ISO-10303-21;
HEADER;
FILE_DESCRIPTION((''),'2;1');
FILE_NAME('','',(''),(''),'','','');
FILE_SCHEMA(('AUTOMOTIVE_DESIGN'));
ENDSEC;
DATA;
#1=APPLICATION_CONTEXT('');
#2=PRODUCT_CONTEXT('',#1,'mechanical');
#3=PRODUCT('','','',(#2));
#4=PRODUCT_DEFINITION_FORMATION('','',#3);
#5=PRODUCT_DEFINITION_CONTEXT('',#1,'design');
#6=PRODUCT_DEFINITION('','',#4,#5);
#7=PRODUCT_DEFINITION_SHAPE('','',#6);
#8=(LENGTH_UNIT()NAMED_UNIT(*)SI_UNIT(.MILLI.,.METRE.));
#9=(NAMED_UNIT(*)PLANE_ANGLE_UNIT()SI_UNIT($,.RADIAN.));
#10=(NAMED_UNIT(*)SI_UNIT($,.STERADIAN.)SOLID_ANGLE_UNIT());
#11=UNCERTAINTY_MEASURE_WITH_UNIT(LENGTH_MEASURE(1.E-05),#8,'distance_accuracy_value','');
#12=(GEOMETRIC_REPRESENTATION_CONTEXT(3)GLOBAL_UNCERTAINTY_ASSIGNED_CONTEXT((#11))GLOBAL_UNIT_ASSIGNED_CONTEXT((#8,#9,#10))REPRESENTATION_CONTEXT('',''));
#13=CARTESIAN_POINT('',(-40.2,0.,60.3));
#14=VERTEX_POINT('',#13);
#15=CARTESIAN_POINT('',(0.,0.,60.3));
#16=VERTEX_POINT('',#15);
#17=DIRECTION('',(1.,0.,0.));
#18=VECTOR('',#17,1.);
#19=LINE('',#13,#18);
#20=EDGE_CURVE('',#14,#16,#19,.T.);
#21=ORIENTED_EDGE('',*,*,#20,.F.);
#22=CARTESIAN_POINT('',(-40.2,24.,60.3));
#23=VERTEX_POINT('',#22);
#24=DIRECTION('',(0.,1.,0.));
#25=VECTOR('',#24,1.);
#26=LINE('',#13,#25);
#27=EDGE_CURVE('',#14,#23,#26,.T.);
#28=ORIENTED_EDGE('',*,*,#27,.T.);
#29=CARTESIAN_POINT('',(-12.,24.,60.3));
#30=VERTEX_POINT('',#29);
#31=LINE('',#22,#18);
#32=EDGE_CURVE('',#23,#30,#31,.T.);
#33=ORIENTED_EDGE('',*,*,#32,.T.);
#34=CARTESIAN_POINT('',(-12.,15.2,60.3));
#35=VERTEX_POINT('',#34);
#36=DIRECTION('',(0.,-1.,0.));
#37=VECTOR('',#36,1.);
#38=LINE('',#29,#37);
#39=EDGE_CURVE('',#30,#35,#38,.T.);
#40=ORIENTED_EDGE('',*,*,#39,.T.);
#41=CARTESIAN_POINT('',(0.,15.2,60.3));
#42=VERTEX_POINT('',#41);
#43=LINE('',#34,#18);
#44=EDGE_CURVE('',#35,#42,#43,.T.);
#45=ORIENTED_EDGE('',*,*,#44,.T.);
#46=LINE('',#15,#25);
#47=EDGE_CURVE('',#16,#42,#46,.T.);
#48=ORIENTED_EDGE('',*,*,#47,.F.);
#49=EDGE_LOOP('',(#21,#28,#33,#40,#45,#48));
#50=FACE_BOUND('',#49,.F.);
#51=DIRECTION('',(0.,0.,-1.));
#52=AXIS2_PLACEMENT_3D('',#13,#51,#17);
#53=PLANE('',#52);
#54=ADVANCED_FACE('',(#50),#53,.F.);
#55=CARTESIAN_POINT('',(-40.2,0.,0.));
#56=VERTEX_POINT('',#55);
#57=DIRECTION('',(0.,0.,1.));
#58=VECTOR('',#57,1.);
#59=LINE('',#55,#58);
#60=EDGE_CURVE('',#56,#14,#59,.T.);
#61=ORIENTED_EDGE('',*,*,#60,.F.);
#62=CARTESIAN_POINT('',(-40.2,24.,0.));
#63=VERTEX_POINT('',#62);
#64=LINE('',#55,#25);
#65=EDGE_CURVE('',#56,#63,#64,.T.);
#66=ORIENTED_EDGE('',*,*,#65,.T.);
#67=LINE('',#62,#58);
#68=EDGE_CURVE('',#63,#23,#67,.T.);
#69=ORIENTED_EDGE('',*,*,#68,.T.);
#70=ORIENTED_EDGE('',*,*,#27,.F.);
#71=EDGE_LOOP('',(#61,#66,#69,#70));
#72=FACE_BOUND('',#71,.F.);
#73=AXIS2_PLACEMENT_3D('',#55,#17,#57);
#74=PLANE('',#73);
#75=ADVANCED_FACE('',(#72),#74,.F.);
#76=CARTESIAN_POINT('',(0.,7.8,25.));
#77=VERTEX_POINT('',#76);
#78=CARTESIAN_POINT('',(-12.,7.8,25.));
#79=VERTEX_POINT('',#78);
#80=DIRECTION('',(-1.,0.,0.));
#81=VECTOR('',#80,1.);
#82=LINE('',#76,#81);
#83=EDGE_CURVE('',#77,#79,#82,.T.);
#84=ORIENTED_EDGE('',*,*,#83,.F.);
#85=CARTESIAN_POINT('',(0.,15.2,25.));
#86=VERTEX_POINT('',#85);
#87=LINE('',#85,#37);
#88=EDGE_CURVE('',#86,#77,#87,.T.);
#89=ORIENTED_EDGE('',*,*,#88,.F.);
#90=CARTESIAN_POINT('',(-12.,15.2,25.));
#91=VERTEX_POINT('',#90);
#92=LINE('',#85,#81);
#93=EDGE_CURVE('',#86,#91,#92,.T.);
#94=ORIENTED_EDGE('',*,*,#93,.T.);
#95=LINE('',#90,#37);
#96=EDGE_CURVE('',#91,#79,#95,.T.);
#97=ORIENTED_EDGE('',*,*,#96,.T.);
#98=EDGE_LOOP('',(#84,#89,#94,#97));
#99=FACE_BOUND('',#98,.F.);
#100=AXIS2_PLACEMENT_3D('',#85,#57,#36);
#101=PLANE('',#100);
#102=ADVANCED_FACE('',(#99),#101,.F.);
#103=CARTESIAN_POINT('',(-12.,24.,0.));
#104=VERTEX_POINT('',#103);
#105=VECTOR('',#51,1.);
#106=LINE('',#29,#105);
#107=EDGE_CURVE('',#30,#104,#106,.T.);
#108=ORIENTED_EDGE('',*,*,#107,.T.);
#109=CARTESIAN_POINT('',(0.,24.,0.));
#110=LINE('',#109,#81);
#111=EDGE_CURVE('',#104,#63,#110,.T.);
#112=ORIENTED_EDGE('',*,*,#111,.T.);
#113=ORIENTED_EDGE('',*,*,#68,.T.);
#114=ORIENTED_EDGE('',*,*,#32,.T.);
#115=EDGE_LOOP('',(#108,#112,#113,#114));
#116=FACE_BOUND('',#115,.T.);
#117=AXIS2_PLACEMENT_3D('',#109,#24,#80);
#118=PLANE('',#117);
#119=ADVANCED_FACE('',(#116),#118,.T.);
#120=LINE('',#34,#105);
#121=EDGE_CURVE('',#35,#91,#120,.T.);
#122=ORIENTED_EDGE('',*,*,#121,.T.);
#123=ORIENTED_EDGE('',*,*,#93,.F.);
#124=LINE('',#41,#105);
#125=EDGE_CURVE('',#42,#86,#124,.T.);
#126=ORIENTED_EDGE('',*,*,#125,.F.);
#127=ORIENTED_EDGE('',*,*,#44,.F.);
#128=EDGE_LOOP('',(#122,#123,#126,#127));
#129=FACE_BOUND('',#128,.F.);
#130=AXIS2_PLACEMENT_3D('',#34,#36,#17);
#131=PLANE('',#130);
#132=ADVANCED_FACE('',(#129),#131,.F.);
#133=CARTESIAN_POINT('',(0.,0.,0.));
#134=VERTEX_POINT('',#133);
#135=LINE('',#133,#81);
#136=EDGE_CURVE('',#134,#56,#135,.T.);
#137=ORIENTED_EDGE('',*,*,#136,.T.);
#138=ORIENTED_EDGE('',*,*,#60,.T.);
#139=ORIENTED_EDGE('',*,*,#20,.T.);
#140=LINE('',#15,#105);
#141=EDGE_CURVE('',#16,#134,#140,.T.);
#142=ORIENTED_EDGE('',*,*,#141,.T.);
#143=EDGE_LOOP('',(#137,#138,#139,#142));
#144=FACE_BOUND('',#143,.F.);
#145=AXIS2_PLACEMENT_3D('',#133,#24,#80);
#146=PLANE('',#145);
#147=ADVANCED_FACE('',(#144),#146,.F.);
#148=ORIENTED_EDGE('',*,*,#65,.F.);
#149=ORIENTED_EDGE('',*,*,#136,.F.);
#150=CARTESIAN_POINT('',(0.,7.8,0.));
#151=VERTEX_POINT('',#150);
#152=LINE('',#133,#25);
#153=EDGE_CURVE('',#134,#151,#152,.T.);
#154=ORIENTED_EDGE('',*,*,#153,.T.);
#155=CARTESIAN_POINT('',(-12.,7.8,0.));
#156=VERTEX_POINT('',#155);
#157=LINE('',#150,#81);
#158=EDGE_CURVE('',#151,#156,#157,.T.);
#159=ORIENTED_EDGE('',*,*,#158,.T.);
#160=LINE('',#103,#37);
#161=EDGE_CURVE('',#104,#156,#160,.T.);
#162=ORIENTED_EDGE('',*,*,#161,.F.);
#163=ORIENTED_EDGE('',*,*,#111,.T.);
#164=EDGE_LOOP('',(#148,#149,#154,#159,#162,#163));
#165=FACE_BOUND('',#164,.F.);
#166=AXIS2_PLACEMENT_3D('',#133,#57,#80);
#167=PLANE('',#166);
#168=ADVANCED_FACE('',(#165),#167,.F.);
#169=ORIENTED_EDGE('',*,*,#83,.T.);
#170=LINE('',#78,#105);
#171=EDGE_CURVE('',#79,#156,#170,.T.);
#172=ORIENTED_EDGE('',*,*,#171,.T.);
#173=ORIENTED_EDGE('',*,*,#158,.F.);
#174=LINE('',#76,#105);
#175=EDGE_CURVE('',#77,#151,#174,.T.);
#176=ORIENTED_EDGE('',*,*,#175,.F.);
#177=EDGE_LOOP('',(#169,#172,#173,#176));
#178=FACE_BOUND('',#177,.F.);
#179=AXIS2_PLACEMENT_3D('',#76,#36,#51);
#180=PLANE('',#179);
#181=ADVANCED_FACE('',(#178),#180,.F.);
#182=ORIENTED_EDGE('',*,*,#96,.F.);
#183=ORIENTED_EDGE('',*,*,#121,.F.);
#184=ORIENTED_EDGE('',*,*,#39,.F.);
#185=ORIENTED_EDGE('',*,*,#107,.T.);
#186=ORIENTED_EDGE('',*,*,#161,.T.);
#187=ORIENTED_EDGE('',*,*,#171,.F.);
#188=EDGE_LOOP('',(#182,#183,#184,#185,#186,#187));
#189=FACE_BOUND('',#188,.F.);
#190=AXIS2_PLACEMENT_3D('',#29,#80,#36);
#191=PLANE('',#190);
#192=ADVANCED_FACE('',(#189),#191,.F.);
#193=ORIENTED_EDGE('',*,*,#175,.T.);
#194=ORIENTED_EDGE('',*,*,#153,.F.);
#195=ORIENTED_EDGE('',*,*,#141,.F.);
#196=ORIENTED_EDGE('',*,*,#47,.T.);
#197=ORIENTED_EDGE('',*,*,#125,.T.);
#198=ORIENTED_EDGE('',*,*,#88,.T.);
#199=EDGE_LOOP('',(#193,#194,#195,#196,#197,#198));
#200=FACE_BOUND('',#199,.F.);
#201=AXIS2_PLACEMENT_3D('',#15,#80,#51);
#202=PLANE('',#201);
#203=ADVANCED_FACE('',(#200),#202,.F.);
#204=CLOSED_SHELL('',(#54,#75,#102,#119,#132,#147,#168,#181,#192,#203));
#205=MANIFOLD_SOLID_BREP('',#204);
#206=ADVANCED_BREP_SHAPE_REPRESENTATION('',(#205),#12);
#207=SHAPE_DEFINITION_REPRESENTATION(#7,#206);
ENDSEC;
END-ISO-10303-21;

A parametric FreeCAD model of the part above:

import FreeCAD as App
import Part
import Sketcher


def add_polygon(sketch, points):
    """Adds a closed chain of lines whose ends are joined by coincident constraints."""
    first, n = sketch.GeometryCount, len(points)
    for a, b in zip(points, points[1:] + points[:1]):
        sketch.addGeometry(Part.LineSegment(App.Vector(*a, 0), App.Vector(*b, 0)), False)
    for i in range(n):
        sketch.addConstraint(Sketcher.Constraint("Coincident", first + i, 2, first + (i + 1) % n, 1))

doc = App.newDocument("Part")
body = doc.addObject("PartDesign::Body", "Body")

sketch1 = body.newObject("Sketcher::SketchObject", "Sketch")
sketch1.AttachmentSupport = (doc.getObject("XZ_Plane"), [""])
sketch1.MapMode = "FlatFace"
add_polygon(sketch1, [(0, 60), (0, 0), (-40, 0), (-40, 60)])
sketch1.addConstraint(Sketcher.Constraint("Vertical", 0))
sketch1.addConstraint(Sketcher.Constraint("Horizontal", 1))
sketch1.addConstraint(Sketcher.Constraint("Vertical", 2))
sketch1.addConstraint(Sketcher.Constraint("Horizontal", 3))
sketch1.addConstraint(Sketcher.Constraint("Coincident", 0, 2, -1, 1))
sketch1.addConstraint(Sketcher.Constraint("DistanceX", 1, 2, 1, 1, 40.2))
sketch1.addConstraint(Sketcher.Constraint("DistanceY", 0, 2, 0, 1, 60.3))
pad1 = body.newObject("PartDesign::Pad", "Pad")
pad1.Profile = sketch1
pad1.Length = 24
pad1.Reversed = True

sketch2 = body.newObject("Sketcher::SketchObject", "Sketch001")
sketch2.AttachmentSupport = (doc.getObject("XY_Plane"), [""])
sketch2.MapMode = "FlatFace"
sketch2.AttachmentOffset = App.Placement(App.Vector(0, 0, 60.3), App.Rotation())
add_polygon(sketch2, [(-12, 15), (0, 15), (0, 24), (-12, 24)])
sketch2.addConstraint(Sketcher.Constraint("Horizontal", 0))
sketch2.addConstraint(Sketcher.Constraint("Vertical", 1))
sketch2.addConstraint(Sketcher.Constraint("Horizontal", 2))
sketch2.addConstraint(Sketcher.Constraint("Vertical", 3))
sketch2.addConstraint(Sketcher.Constraint("PointOnObject", 0, 2, -2))
sketch2.addConstraint(Sketcher.Constraint("DistanceX", 0, 1, 0, 2, 12.0))
sketch2.addConstraint(Sketcher.Constraint("DistanceY", 1, 1, 1, 2, 8.8))
sketch2.addConstraint(Sketcher.Constraint("DistanceY", -1, 1, 1, 2, 24.0))
pocket1 = body.newObject("PartDesign::Pocket", "Pocket")
pocket1.Profile = sketch2
pocket1.Type = "ThroughAll"

sketch3 = body.newObject("Sketcher::SketchObject", "Sketch002")
sketch3.AttachmentSupport = (doc.getObject("YZ_Plane"), [""])
sketch3.MapMode = "FlatFace"
add_polygon(sketch3, [(8, 0), (15, 0), (15, 25), (8, 25)])
sketch3.addConstraint(Sketcher.Constraint("Horizontal", 0))
sketch3.addConstraint(Sketcher.Constraint("Vertical", 1))
sketch3.addConstraint(Sketcher.Constraint("Horizontal", 2))
sketch3.addConstraint(Sketcher.Constraint("Vertical", 3))
sketch3.addConstraint(Sketcher.Constraint("PointOnObject", 0, 2, -1))
sketch3.addConstraint(Sketcher.Constraint("DistanceY", 1, 1, 1, 2, 25.0))
sketch3.addConstraint(Sketcher.Constraint("DistanceX", 0, 1, 0, 2, 7.4))
sketch3.addConstraint(Sketcher.Constraint("DistanceX", -1, 1, 0, 2, 15.2))
pocket2 = body.newObject("PartDesign::Pocket", "Pocket001")
pocket2.Profile = sketch3
pocket2.Length = 12

doc.recompute()
